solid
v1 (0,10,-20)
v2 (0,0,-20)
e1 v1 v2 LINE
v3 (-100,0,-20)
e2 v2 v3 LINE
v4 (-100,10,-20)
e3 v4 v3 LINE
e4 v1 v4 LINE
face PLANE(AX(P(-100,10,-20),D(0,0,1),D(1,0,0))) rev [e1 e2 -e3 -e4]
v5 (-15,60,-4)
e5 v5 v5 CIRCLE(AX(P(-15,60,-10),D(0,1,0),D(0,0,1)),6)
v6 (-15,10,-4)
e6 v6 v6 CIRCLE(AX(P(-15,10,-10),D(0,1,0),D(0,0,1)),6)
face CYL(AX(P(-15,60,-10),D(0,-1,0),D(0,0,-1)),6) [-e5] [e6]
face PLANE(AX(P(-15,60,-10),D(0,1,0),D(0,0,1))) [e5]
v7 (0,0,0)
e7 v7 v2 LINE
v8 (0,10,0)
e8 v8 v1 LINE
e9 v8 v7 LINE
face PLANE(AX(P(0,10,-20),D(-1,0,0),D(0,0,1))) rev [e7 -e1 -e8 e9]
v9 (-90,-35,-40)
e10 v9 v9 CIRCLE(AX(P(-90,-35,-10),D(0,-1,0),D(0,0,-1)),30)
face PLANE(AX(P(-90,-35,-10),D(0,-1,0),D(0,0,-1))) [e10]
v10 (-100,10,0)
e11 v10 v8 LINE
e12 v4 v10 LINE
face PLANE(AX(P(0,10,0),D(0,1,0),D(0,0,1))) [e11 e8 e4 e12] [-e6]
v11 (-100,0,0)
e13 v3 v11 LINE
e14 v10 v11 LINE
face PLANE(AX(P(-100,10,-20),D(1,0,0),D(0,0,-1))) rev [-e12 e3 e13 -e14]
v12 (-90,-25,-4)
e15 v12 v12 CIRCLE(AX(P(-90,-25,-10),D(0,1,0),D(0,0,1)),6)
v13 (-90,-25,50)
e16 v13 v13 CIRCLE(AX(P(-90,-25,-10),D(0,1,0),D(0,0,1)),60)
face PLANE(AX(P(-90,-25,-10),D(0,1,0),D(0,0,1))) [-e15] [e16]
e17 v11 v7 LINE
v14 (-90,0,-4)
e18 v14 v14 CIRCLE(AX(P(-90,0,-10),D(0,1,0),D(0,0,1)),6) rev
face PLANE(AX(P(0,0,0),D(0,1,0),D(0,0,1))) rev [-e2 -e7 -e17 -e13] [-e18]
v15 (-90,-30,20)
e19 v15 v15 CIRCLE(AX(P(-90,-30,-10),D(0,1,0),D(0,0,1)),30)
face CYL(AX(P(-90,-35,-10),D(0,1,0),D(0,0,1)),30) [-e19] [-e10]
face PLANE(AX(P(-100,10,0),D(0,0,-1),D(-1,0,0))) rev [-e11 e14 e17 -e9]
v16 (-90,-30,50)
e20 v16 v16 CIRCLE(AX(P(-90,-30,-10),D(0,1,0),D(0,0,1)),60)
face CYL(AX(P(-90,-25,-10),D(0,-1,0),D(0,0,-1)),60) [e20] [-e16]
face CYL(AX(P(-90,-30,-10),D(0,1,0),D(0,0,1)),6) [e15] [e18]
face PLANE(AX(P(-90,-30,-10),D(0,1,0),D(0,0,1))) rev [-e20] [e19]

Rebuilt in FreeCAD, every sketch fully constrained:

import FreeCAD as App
import Part
import Sketcher
Q = App.Units.Quantity

doc = App.newDocument("Part")
body = doc.addObject("PartDesign::Body", "Body")

# Sketch on XZ plane
sketch1 = body.newObject("Sketcher::SketchObject", "Sketch")
sketch1.AttachmentSupport = (doc.getObject("XZ_Plane"), [""])
sketch1.MapMode = "FlatFace"
sketch1.addGeometry([
    Part.LineSegment(App.Vector(-100, -20, 0), App.Vector(-100, 0, 0)),
    Part.LineSegment(App.Vector(-100, 0, 0), App.Vector(0, 0, 0)),
    Part.LineSegment(App.Vector(0, 0, 0), App.Vector(0, -20, 0)),
    Part.LineSegment(App.Vector(0, -20, 0), App.Vector(-100, -20, 0)),
], False)
sketch1.addConstraint([
    Sketcher.Constraint("Coincident", 0, 2, 1, 1),
    Sketcher.Constraint("Coincident", 1, 2, 2, 1),
    Sketcher.Constraint("Coincident", 2, 2, 3, 1),
    Sketcher.Constraint("Coincident", 3, 2, 0, 1),
    Sketcher.Constraint("Vertical", 0),
    Sketcher.Constraint("Horizontal", 1),
    Sketcher.Constraint("Vertical", 2),
    Sketcher.Constraint("Horizontal", 3),
    Sketcher.Constraint("Coincident", 1, 2, -1, 1),
    Sketcher.Constraint("DistanceX", 1, 1, 1, 2, Q("100 mm")),
    Sketcher.Constraint("DistanceY", 0, 1, 0, 2, Q("20 mm")),
])
pad1 = body.newObject("PartDesign::Pad", "Pad")
pad1.Profile = sketch1
pad1.Length = 10
pad1.Reversed = True

# Sketch on XZ plane
sketch2 = body.newObject("Sketcher::SketchObject", "Sketch001")
sketch2.AttachmentSupport = (doc.getObject("XZ_Plane"), [""])
sketch2.MapMode = "FlatFace"
sketch2.AttachmentOffset = App.Placement(App.Vector(0, 0, -10), App.Rotation())
sketch2.addGeometry(Part.Circle(App.Vector(-15, -10, 0), App.Vector(0, 0, 1), 6), False)
sketch2.addConstraint([
    Sketcher.Constraint("Diameter", 0, Q("12 mm")),
    Sketcher.Constraint("DistanceX", 0, 3, -1, 1, Q("15 mm")),
    Sketcher.Constraint("DistanceY", 0, 3, -1, 1, Q("10 mm")),
])
pad2 = body.newObject("PartDesign::Pad", "Pad001")
pad2.Profile = sketch2
pad2.Length = 50
pad2.Reversed = True

# Sketch on XZ plane
sketch3 = body.newObject("Sketcher::SketchObject", "Sketch002")
sketch3.AttachmentSupport = (doc.getObject("XZ_Plane"), [""])
sketch3.MapMode = "FlatFace"
sketch3.addGeometry(Part.Circle(App.Vector(-90, -10, 0), App.Vector(0, 0, 1), 6), False)
sketch3.addConstraint([
    Sketcher.Constraint("Diameter", 0, Q("12 mm")),
    Sketcher.Constraint("DistanceX", 0, 3, -1, 1, Q("90 mm")),
    Sketcher.Constraint("DistanceY", 0, 3, -1, 1, Q("10 mm")),
])
pad3 = body.newObject("PartDesign::Pad", "Pad002")
pad3.Profile = sketch3
pad3.Length = 30

# Sketch on XZ plane
sketch4 = body.newObject("Sketcher::SketchObject", "Sketch003")
sketch4.AttachmentSupport = (doc.getObject("XZ_Plane"), [""])
sketch4.MapMode = "FlatFace"
sketch4.AttachmentOffset = App.Placement(App.Vector(0, 0, 30), App.Rotation())
sketch4.addGeometry(Part.Circle(App.Vector(-90, -10, 0), App.Vector(0, 0, 1), 30), False)
sketch4.addConstraint([
    Sketcher.Constraint("Diameter", 0, Q("60 mm")),
    Sketcher.Constraint("DistanceX", 0, 3, -1, 1, Q("90 mm")),
    Sketcher.Constraint("DistanceY", 0, 3, -1, 1, Q("10 mm")),
])
pad4 = body.newObject("PartDesign::Pad", "Pad003")
pad4.Profile = sketch4
pad4.Length = 5

# Sketch on XZ plane
sketch5 = body.newObject("Sketcher::SketchObject", "Sketch004")
sketch5.AttachmentSupport = (doc.getObject("XZ_Plane"), [""])
sketch5.MapMode = "FlatFace"
sketch5.AttachmentOffset = App.Placement(App.Vector(0, 0, 30), App.Rotation())
sketch5.addGeometry(Part.Circle(App.Vector(-90, -10, 0), App.Vector(0, 0, 1), 60), False)
sketch5.addConstraint([
    Sketcher.Constraint("Diameter", 0, Q("120 mm")),
    Sketcher.Constraint("DistanceX", 0, 3, -1, 1, Q("90 mm")),
    Sketcher.Constraint("DistanceY", 0, 3, -1, 1, Q("10 mm")),
])
pad5 = body.newObject("PartDesign::Pad", "Pad004")
pad5.Profile = sketch5
pad5.Length = 5
pad5.Reversed = True

doc.recompute()
